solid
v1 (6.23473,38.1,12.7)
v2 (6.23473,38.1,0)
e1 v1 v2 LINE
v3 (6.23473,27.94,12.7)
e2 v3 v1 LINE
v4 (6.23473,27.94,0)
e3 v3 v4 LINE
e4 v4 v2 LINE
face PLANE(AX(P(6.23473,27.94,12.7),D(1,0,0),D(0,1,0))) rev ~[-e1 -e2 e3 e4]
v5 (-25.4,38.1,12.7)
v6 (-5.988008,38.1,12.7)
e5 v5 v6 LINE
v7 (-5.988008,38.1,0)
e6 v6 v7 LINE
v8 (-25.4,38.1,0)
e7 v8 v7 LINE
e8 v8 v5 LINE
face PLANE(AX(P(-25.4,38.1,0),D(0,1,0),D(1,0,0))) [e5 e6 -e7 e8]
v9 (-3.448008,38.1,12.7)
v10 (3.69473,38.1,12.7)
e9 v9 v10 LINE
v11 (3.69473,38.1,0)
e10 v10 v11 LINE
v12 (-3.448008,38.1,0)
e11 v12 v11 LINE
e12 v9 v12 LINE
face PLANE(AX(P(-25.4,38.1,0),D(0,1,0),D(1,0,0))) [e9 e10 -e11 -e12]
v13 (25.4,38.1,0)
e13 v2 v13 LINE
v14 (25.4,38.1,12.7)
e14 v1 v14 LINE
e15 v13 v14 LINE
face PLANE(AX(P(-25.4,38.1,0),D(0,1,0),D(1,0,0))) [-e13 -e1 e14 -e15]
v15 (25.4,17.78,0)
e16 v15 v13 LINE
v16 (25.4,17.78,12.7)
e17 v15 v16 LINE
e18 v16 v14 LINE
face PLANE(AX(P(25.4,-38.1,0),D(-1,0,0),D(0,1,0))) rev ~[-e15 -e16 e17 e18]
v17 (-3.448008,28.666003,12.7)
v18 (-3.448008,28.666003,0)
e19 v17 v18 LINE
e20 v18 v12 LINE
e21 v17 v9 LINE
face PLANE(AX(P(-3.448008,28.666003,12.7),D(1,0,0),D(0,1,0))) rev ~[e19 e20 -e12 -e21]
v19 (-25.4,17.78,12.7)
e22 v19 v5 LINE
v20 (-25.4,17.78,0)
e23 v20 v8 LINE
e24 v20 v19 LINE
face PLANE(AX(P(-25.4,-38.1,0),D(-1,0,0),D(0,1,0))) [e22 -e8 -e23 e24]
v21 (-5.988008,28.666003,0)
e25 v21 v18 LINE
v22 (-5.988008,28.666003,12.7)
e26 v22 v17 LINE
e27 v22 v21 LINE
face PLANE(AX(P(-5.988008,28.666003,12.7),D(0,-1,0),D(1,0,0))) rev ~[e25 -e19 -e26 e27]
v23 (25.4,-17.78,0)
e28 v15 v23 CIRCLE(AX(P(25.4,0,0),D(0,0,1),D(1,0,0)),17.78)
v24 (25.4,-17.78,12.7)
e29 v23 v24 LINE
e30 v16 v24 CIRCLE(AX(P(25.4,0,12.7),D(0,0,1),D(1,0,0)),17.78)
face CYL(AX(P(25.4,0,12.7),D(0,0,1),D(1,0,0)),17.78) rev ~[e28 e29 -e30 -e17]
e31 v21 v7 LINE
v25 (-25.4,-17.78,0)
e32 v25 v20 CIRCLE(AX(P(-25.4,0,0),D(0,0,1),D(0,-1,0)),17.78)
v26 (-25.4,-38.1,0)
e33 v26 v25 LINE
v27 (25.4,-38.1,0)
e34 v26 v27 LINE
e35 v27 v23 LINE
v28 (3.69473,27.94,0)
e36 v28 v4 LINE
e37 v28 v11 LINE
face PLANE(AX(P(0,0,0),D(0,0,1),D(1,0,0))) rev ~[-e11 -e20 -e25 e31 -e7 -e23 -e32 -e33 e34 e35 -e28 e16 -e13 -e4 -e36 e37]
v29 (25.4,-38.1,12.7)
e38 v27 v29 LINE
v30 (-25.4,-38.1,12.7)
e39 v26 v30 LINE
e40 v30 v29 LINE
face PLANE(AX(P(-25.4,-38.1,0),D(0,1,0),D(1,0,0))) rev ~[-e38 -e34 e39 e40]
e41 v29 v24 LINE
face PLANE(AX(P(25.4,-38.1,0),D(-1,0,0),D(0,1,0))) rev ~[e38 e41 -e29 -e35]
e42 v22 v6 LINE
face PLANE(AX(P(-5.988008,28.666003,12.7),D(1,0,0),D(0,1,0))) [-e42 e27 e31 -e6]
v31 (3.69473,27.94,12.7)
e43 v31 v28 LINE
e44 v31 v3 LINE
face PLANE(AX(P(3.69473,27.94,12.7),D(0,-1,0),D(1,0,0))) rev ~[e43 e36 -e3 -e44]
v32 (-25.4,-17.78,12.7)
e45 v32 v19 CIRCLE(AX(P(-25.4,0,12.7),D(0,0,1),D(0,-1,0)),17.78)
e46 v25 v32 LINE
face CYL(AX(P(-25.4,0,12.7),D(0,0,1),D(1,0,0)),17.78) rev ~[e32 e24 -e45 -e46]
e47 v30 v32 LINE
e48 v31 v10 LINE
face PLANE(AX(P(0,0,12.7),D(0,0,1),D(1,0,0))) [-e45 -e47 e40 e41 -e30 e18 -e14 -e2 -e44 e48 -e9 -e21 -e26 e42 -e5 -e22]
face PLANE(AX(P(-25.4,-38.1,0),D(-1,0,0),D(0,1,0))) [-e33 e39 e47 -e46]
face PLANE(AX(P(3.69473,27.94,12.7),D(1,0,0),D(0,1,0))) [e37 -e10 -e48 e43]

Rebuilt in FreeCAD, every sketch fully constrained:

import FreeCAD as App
import Part
import Sketcher
from FreeCAD import Vector
Q = App.Units.Quantity

doc = App.newDocument("Part")
body = doc.addObject("PartDesign::Body", "Body")

sketch1 = body.newObject("Sketcher::SketchObject", "Sketch")
sketch1.AttachmentSupport = (doc.getObject("XY_Plane"), [""])
sketch1.MapMode = "FlatFace"
sketch1.addGeometry(Part.LineSegment(Vector(-25.4, 38.1, 0), Vector(-25.4, -38.1, 0)), False)
sketch1.addGeometry(Part.LineSegment(Vector(-25.4, -38.1, 0), Vector(25.4, -38.1, 0)), False)
sketch1.addGeometry(Part.LineSegment(Vector(25.4, -38.1, 0), Vector(25.4, 38.1, 0)), False)
sketch1.addGeometry(Part.LineSegment(Vector(25.4, 38.1, 0), Vector(-25.4, 38.1, 0)), False)
sketch1.addConstraint(Sketcher.Constraint("Coincident", 0, 2, 1, 1))
sketch1.addConstraint(Sketcher.Constraint("Coincident", 1, 2, 2, 1))
sketch1.addConstraint(Sketcher.Constraint("Coincident", 2, 2, 3, 1))
sketch1.addConstraint(Sketcher.Constraint("Coincident", 3, 2, 0, 1))
sketch1.addConstraint(Sketcher.Constraint("Vertical", 0))
sketch1.addConstraint(Sketcher.Constraint("Horizontal", 1))
sketch1.addConstraint(Sketcher.Constraint("Vertical", 2))
sketch1.addConstraint(Sketcher.Constraint("Horizontal", 3))
sketch1.addConstraint(Sketcher.Constraint("Symmetric", 0, 2, 2, 2, -1, 1))
sketch1.addConstraint(Sketcher.Constraint("DistanceX", 1, 1, 1, 2, Q("2 in")))
sketch1.addConstraint(Sketcher.Constraint("DistanceY", 0, 2, 0, 1, Q("3 in")))
pad1 = body.newObject("PartDesign::Pad", "Pad")
pad1.Profile = sketch1
pad1.Length = Q("0.5 in")

sketch2 = body.newObject("Sketcher::SketchObject", "Sketch001")
sketch2.AttachmentSupport = (doc.getObject("XY_Plane"), [""])
sketch2.MapMode = "FlatFace"
sketch2.AttachmentOffset = App.Placement(Vector(0, 0, 0.5 * 25.4), App.Rotation())
sketch2.addGeometry(Part.Circle(Vector(25.4, 0, 0), Vector(0, 0, 1), 17.78), False)
sketch2.addConstraint(Sketcher.Constraint("PointOnObject", 0, 3, -1))
sketch2.addConstraint(Sketcher.Constraint("Diameter", 0, Q("1.4 in")))
sketch2.addConstraint(Sketcher.Constraint("DistanceX", -1, 1, 0, 3, Q("1 in")))
pocket1 = body.newObject("PartDesign::Pocket", "Pocket")
pocket1.Profile = sketch2
pocket1.Length = Q("1 in")

sketch3 = body.newObject("Sketcher::SketchObject", "Sketch002")
sketch3.AttachmentSupport = (doc.getObject("XY_Plane"), [""])
sketch3.MapMode = "FlatFace"
sketch3.AttachmentOffset = App.Placement(Vector(0, 0, 0.5 * 25.4), App.Rotation())
sketch3.addGeometry(Part.Circle(Vector(-25.4, 0, 0), Vector(0, 0, 1), 17.78), False)
sketch3.addConstraint(Sketcher.Constraint("PointOnObject", 0, 3, -1))
sketch3.addConstraint(Sketcher.Constraint("Diameter", 0, Q("1.4 in")))
sketch3.addConstraint(Sketcher.Constraint("DistanceX", 0, 3, -1, 1, Q("1 in")))
pocket2 = body.newObject("PartDesign::Pocket", "Pocket001")
pocket2.Profile = sketch3
pocket2.Length = Q("1 in")

sketch4 = body.newObject("Sketcher::SketchObject", "Sketch003")
sketch4.AttachmentSupport = (doc.getObject("XY_Plane"), [""])
sketch4.MapMode = "FlatFace"
sketch4.AttachmentOffset = App.Placement(Vector(0, 0, 0.5 * 25.4), App.Rotation())
sketch4.addGeometry(Part.LineSegment(Vector(3.69473, 38.1, 0), Vector(3.69473, 27.94, 0)), False)
sketch4.addGeometry(Part.LineSegment(Vector(3.69473, 27.94, 0), Vector(6.23473, 27.94, 0)), False)
sketch4.addGeometry(Part.LineSegment(Vector(6.23473, 27.94, 0), Vector(6.23473, 38.1, 0)), False)
sketch4.addGeometry(Part.LineSegment(Vector(6.23473, 38.1, 0), Vector(3.69473, 38.1, 0)), False)
sketch4.addConstraint(Sketcher.Constraint("Coincident", 0, 2, 1, 1))
sketch4.addConstraint(Sketcher.Constraint("Coincident", 1, 2, 2, 1))
sketch4.addConstraint(Sketcher.Constraint("Coincident", 2, 2, 3, 1))
sketch4.addConstraint(Sketcher.Constraint("Coincident", 3, 2, 0, 1))
sketch4.addConstraint(Sketcher.Constraint("Vertical", 0))
sketch4.addConstraint(Sketcher.Constraint("Horizontal", 1))
sketch4.addConstraint(Sketcher.Constraint("Vertical", 2))
sketch4.addConstraint(Sketcher.Constraint("Horizontal", 3))
sketch4.addConstraint(Sketcher.Constraint("DistanceX", 1, 1, 1, 2, Q("0.1 in")))
sketch4.addConstraint(Sketcher.Constraint("DistanceY", 0, 2, 0, 1, Q("0.4 in")))
sketch4.addConstraint(Sketcher.Constraint("DistanceY", -1, 1, 0, 2, Q("1.1 in")))
sketch4.addConstraint(Sketcher.Constraint("DistanceX", -1, 1, 0, 2, 3.69473))
pocket3 = body.newObject("PartDesign::Pocket", "Pocket002")
pocket3.Profile = sketch4
pocket3.Length = Q("1 in")

sketch5 = body.newObject("Sketcher::SketchObject", "Sketch004")
sketch5.AttachmentSupport = (doc.getObject("XY_Plane"), [""])
sketch5.MapMode = "FlatFace"
sketch5.AttachmentOffset = App.Placement(Vector(0, 0, 0.5 * 25.4), App.Rotation())
sketch5.addGeometry(Part.LineSegment(Vector(-5.988008, 38.826003, 0), Vector(-5.988008, 28.666003, 0)), False)
sketch5.addGeometry(Part.LineSegment(Vector(-5.988008, 28.666003, 0), Vector(-3.448008, 28.666003, 0)), False)
sketch5.addGeometry(Part.LineSegment(Vector(-3.448008, 28.666003, 0), Vector(-3.448008, 38.826003, 0)), False)
sketch5.addGeometry(Part.LineSegment(Vector(-3.448008, 38.826003, 0), Vector(-5.988008, 38.826003, 0)), False)
sketch5.addConstraint(Sketcher.Constraint("Coincident", 0, 2, 1, 1))
sketch5.addConstraint(Sketcher.Constraint("Coincident", 1, 2, 2, 1))
sketch5.addConstraint(Sketcher.Constraint("Coincident", 2, 2, 3, 1))
sketch5.addConstraint(Sketcher.Constraint("Coincident", 3, 2, 0, 1))
sketch5.addConstraint(Sketcher.Constraint("Vertical", 0))
sketch5.addConstraint(Sketcher.Constraint("Horizontal", 1))
sketch5.addConstraint(Sketcher.Constraint("Vertical", 2))
sketch5.addConstraint(Sketcher.Constraint("Horizontal", 3))
sketch5.addConstraint(Sketcher.Constraint("DistanceX", 1, 1, 1, 2, Q("0.1 in")))
sketch5.addConstraint(Sketcher.Constraint("DistanceY", 0, 2, 0, 1, Q("0.4 in")))
sketch5.addConstraint(Sketcher.Constraint("DistanceX", 1, 2, -1, 1, 3.448008))
sketch5.addConstraint(Sketcher.Constraint("DistanceY", -1, 1, 0, 2, 28.666003))
pocket4 = body.newObject("PartDesign::Pocket", "Pocket003")
pocket4.Profile = sketch5
pocket4.Length = Q("1 in")

doc.recompute()
